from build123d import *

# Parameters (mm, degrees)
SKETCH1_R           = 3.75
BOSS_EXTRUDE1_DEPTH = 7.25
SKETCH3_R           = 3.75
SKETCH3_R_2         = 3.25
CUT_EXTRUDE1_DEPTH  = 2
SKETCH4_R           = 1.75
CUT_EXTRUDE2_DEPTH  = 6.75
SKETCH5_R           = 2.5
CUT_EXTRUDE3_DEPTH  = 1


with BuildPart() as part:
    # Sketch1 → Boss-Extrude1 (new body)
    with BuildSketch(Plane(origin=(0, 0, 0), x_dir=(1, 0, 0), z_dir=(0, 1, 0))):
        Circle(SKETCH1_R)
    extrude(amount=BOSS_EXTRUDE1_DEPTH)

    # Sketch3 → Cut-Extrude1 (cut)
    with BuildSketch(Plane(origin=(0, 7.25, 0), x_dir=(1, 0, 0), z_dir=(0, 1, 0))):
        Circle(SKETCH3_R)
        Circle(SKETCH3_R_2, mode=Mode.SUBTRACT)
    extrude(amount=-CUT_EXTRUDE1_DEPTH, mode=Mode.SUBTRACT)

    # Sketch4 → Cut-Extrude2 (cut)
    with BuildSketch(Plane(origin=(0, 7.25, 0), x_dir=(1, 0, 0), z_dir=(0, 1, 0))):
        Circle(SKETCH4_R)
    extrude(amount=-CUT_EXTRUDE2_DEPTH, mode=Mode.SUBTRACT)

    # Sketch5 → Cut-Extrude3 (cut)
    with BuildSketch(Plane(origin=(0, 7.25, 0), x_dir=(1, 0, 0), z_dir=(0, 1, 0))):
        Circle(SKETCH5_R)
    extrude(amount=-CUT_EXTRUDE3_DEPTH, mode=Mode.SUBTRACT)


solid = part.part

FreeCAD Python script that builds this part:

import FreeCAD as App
import Part
import Sketcher
from FreeCAD import Vector

doc = App.newDocument("Part")
body = doc.addObject("PartDesign::Body", "Body")

sketch1 = body.newObject("Sketcher::SketchObject", "Sketch")
sketch1.AttachmentSupport = (doc.getObject("XZ_Plane"), [""])
sketch1.MapMode = "FlatFace"
sketch1.addGeometry(Part.Circle(Vector(0, 0, 0), Vector(0, 0, 1), 3.8), False)
sketch1.addConstraint([
    Sketcher.Constraint("Coincident", 0, 3, -1, 1),
    Sketcher.Constraint("Diameter", 0, 7.5),
])
pad1 = body.newObject("PartDesign::Pad", "Pad")
pad1.Profile = sketch1
pad1.Length = 7.25
pad1.Reversed = True

sketch2 = body.newObject("Sketcher::SketchObject", "Sketch001")
sketch2.AttachmentSupport = (doc.getObject("XZ_Plane"), [""])
sketch2.MapMode = "FlatFace"
sketch2.AttachmentOffset = App.Placement(Vector(0, 0, -7.25), App.Rotation())
sketch2.addGeometry([
    Part.Circle(Vector(0, 0, 0), Vector(0, 0, 1), 3.8),
    Part.Circle(Vector(0, 0, 0), Vector(0, 0, 1), 3.2),
], False)
sketch2.addConstraint([
    Sketcher.Constraint("Coincident", 0, 3, -1, 1),
    Sketcher.Constraint("Coincident", 1, 3, -1, 1),
    Sketcher.Constraint("Diameter", 0, 7.5),
    Sketcher.Constraint("Diameter", 1, 6.5),
])
pocket1 = body.newObject("PartDesign::Pocket", "Pocket")
pocket1.Profile = sketch2
pocket1.Length = 2
pocket1.Reversed = True

sketch3 = body.newObject("Sketcher::SketchObject", "Sketch002")
sketch3.AttachmentSupport = (doc.getObject("XZ_Plane"), [""])
sketch3.MapMode = "FlatFace"
sketch3.AttachmentOffset = App.Placement(Vector(0, 0, -7.25), App.Rotation())
sketch3.addGeometry(Part.Circle(Vector(0, 0, 0), Vector(0, 0, 1), 1.8), False)
sketch3.addConstraint([
    Sketcher.Constraint("Coincident", 0, 3, -1, 1),
    Sketcher.Constraint("Diameter", 0, 3.5),
])
pocket2 = body.newObject("PartDesign::Pocket", "Pocket001")
pocket2.Profile = sketch3
pocket2.Length = 6.75
pocket2.Reversed = True

sketch4 = body.newObject("Sketcher::SketchObject", "Sketch003")
sketch4.AttachmentSupport = (doc.getObject("XZ_Plane"), [""])
sketch4.MapMode = "FlatFace"
sketch4.AttachmentOffset = App.Placement(Vector(0, 0, -7.25), App.Rotation())
sketch4.addGeometry(Part.Circle(Vector(0, 0, 0), Vector(0, 0, 1), 2.5), False)
sketch4.addConstraint([
    Sketcher.Constraint("Coincident", 0, 3, -1, 1),
    Sketcher.Constraint("Diameter", 0, 5.0),
])
pocket3 = body.newObject("PartDesign::Pocket", "Pocket002")
pocket3.Profile = sketch4
pocket3.Length = 1
pocket3.Reversed = True

doc.recompute()
